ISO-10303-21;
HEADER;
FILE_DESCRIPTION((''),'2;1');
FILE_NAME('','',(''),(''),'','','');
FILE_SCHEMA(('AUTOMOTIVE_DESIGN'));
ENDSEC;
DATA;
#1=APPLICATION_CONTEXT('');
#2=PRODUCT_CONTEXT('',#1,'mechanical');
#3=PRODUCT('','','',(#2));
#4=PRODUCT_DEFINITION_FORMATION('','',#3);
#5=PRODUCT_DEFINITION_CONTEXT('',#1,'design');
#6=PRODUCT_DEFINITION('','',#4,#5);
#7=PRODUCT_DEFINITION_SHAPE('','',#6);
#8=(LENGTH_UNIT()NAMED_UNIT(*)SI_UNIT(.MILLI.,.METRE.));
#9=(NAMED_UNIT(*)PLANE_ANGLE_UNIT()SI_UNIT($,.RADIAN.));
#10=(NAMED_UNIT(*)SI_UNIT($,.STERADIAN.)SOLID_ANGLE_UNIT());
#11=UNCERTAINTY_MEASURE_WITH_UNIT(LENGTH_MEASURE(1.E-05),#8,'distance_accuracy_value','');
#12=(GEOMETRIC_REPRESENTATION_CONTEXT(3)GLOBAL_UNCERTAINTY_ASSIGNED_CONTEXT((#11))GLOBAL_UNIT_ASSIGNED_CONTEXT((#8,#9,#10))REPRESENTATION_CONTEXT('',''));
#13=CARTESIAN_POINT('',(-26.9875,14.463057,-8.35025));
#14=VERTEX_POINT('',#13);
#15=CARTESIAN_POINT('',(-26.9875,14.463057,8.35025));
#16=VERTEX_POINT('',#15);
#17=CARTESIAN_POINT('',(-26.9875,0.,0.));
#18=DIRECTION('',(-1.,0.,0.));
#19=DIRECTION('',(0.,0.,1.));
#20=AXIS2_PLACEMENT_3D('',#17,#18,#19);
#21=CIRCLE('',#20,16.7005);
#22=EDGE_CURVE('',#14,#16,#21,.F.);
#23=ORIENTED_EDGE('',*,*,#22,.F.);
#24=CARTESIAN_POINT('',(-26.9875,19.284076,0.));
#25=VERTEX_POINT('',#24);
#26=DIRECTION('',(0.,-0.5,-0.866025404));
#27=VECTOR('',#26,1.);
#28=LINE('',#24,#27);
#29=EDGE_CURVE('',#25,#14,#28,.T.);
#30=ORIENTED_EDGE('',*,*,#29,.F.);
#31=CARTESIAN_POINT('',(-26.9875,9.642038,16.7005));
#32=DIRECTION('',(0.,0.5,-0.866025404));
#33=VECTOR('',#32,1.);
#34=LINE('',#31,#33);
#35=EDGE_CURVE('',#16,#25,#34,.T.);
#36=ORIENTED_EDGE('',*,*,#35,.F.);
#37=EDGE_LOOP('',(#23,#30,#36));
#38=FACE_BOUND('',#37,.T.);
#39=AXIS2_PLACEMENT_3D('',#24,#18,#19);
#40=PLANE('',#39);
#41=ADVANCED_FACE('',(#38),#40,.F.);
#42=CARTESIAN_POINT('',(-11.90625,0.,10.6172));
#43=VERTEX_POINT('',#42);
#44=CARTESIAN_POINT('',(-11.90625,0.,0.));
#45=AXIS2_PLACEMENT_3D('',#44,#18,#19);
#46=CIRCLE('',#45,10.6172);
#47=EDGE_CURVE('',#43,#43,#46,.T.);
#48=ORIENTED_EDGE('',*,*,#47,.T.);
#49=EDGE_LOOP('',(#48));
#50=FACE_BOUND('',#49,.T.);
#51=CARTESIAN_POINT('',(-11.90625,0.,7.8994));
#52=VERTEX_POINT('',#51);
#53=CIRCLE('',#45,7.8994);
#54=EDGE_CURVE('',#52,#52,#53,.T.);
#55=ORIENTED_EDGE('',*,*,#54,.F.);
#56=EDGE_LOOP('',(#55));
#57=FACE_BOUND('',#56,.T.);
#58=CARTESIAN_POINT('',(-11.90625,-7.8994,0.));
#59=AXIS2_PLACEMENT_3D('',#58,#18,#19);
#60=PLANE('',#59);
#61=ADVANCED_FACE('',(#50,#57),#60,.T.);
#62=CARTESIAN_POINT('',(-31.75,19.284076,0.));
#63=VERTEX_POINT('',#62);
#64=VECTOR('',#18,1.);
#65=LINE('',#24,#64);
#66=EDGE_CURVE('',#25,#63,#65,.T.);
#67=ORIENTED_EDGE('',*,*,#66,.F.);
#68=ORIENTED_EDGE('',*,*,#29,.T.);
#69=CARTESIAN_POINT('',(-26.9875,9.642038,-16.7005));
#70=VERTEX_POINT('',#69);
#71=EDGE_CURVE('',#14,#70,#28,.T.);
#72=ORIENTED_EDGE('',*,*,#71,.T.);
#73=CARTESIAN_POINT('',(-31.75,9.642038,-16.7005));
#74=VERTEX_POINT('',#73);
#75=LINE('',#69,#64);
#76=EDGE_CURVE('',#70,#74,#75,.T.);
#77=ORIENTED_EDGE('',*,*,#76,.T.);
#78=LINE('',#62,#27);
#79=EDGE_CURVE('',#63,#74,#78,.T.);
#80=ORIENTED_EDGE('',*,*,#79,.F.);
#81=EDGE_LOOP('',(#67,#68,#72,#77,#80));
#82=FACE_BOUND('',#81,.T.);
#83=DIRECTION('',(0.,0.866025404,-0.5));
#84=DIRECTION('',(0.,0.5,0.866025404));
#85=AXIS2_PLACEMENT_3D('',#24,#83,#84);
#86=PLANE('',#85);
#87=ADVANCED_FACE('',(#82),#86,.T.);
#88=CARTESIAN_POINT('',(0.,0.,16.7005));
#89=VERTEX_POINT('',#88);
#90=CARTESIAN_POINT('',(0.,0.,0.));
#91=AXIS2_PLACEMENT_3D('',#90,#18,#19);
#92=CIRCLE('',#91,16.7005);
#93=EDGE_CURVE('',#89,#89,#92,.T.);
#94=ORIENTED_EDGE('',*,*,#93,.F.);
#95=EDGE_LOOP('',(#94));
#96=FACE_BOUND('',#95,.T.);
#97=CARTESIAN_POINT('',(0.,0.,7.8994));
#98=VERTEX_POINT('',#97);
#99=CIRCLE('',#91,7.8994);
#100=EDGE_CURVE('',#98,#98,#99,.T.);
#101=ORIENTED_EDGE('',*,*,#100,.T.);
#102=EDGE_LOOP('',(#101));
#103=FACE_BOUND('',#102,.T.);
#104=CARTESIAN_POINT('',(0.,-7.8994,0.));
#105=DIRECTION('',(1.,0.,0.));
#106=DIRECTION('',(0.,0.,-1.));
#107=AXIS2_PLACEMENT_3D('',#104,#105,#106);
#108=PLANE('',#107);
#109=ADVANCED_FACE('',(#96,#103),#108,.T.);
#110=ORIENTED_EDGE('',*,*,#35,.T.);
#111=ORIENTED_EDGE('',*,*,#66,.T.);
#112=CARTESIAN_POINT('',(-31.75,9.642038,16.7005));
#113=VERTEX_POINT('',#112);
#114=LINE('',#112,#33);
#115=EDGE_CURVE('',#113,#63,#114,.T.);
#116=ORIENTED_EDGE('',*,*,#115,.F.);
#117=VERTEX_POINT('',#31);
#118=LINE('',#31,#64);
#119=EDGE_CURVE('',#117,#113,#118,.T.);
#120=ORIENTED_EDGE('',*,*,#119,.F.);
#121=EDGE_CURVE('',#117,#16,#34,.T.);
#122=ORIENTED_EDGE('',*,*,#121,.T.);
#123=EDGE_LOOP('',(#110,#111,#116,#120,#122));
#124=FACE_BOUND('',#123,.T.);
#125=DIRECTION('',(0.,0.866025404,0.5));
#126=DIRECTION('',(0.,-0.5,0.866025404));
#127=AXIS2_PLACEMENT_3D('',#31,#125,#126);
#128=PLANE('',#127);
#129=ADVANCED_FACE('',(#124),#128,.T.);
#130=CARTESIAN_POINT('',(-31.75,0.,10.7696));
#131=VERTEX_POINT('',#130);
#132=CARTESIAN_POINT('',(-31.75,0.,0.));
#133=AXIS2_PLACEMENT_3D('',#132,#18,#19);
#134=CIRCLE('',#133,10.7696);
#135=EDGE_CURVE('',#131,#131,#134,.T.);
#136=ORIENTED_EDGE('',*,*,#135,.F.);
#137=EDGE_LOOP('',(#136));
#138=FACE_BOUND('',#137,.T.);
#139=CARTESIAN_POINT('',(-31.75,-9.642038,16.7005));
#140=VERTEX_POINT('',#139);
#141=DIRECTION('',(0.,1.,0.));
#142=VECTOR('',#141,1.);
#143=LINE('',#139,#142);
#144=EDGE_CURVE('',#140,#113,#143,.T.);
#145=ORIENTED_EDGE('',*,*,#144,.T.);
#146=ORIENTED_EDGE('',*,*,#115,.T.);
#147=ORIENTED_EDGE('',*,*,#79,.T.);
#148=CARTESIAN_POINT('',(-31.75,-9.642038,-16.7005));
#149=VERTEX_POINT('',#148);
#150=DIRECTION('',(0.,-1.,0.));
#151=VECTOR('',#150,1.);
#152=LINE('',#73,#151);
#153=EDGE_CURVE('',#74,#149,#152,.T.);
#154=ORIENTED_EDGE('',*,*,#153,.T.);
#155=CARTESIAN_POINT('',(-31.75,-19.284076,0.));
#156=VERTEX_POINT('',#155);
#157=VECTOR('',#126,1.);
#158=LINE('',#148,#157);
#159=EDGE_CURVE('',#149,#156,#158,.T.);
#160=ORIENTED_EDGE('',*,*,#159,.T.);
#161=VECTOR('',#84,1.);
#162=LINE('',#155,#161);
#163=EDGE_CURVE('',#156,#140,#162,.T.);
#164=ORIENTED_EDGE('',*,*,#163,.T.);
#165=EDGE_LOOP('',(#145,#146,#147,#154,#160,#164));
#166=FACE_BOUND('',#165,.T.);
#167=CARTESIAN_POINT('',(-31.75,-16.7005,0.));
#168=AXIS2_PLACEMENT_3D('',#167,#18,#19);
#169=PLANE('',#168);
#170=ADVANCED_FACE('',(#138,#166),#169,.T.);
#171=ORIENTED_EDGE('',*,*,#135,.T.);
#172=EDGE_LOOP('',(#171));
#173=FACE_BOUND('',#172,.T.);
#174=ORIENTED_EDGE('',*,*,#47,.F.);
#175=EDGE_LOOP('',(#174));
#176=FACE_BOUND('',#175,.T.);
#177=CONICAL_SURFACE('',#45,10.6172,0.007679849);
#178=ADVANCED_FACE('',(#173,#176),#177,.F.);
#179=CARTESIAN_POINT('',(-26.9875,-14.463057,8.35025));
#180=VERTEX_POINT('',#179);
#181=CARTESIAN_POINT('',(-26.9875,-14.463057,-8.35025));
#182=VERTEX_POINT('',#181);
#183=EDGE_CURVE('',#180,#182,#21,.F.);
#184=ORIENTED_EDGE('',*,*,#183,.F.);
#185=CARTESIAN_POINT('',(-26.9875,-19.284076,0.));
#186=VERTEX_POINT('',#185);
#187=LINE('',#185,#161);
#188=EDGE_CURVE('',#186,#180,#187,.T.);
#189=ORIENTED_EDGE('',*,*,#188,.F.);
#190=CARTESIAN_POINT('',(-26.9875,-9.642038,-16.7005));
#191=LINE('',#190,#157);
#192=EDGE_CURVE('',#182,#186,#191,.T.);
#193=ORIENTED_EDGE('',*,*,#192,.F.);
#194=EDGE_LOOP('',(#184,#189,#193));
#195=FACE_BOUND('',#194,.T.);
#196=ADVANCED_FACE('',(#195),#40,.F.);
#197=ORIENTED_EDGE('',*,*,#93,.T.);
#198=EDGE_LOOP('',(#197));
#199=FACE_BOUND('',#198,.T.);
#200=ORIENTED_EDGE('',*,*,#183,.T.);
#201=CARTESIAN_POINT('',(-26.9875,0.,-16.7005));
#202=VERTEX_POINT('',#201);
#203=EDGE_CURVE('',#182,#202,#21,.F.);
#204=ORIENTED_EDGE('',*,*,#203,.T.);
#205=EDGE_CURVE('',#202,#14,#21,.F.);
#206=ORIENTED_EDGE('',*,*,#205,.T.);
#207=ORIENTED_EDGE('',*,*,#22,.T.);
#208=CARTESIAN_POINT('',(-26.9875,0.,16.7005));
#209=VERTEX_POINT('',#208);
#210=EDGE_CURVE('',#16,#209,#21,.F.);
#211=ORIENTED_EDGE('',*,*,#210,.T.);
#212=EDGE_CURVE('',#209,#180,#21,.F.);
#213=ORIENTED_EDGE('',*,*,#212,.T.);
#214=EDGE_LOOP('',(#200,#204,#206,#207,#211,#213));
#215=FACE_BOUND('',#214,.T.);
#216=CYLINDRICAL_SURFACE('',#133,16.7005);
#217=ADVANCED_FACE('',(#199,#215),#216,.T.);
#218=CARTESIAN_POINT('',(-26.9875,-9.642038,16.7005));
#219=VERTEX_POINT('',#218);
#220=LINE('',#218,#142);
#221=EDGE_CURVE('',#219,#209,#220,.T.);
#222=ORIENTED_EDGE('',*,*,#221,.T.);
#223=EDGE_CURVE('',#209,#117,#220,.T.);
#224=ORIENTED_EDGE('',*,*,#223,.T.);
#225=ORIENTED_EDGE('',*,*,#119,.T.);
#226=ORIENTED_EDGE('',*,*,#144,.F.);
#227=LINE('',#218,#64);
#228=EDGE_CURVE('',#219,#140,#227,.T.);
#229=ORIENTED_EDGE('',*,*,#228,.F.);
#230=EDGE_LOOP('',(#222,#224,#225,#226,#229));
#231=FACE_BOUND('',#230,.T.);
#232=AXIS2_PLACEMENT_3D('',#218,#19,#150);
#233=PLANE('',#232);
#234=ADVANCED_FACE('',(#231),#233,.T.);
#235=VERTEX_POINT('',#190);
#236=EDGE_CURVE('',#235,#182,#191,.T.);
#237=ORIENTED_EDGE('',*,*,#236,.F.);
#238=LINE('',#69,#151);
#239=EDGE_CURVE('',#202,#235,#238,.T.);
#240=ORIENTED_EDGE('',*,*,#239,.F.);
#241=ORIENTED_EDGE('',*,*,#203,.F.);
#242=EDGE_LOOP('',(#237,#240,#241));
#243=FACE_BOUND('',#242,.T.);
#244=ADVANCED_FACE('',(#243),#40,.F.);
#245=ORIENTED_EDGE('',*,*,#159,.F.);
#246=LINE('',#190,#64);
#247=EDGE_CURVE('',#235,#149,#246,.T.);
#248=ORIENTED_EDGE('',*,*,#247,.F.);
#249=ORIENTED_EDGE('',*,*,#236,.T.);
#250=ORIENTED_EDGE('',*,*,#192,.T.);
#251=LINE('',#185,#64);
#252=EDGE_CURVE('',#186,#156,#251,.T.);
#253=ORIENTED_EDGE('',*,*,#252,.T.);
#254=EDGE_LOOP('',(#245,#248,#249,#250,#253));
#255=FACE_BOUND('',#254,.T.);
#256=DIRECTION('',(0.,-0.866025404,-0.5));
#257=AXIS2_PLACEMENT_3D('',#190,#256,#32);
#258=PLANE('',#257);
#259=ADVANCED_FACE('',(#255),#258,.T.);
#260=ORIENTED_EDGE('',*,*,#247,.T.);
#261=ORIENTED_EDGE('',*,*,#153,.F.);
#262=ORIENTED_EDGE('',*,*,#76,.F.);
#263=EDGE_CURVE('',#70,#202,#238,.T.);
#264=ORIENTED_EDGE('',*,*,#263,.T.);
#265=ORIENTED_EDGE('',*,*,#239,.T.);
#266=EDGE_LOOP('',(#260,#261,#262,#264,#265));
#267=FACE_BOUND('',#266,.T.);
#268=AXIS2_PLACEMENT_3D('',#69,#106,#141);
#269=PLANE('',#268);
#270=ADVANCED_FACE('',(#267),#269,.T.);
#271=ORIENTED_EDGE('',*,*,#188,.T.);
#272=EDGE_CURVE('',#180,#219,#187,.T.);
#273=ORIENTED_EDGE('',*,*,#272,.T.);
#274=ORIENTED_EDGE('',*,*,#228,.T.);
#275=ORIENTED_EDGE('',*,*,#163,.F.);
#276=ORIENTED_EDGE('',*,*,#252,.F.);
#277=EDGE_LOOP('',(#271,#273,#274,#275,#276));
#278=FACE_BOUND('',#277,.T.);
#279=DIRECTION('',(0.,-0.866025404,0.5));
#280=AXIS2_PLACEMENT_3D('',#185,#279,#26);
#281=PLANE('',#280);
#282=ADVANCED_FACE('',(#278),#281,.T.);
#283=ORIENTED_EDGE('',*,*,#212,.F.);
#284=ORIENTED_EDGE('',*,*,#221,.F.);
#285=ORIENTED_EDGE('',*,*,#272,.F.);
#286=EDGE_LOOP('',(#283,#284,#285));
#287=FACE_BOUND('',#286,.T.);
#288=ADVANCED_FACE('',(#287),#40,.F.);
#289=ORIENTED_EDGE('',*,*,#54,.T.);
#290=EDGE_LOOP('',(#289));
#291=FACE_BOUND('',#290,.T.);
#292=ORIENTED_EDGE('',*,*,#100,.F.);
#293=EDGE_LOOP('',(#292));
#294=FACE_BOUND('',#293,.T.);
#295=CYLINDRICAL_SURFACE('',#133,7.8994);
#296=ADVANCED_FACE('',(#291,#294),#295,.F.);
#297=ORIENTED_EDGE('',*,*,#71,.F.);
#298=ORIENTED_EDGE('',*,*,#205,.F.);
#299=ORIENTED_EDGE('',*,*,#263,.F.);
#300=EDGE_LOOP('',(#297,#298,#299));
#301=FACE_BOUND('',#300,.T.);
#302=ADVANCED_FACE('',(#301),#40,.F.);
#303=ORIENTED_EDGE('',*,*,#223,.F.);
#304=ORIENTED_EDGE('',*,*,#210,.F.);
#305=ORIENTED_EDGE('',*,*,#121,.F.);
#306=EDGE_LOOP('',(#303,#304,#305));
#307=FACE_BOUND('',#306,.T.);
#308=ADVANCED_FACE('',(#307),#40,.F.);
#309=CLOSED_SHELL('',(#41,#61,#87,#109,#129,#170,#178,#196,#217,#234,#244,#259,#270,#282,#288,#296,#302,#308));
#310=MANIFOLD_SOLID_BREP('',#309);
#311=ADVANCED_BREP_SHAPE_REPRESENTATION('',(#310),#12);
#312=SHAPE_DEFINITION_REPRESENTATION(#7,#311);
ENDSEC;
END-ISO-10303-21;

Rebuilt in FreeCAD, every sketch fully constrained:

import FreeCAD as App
import Part
import Sketcher

V = App.Vector
Q = App.Units.Quantity

doc = App.newDocument("Part")
body = doc.addObject("PartDesign::Body", "Body")

# Sketch on XY plane
sketch1 = body.newObject("Sketcher::SketchObject", "Sketch")
sketch1.AttachmentSupport = (doc.getObject("XY_Plane"), [""])
sketch1.MapMode = "FlatFace"
sketch1.addGeometry(Part.LineSegment(V(-31.8, -16.7, 0), V(0, -16.7, 0)), False)
sketch1.addGeometry(Part.LineSegment(V(0, -16.7, 0), V(0, -7.9, 0)), False)
sketch1.addGeometry(Part.LineSegment(V(0, -7.9, 0), V(-11.9, -7.9, 0)), False)
sketch1.addGeometry(Part.LineSegment(V(-11.9, -7.9, 0), V(-11.9, -10.6, 0)), False)
sketch1.addGeometry(Part.LineSegment(V(-11.9, -10.6, 0), V(-31.8, -10.8, 0)), False)
sketch1.addGeometry(Part.LineSegment(V(-31.8, -10.8, 0), V(-31.8, -16.7, 0)), False)
sketch1.addConstraint(Sketcher.Constraint("Coincident", 0, 2, 1, 1))
sketch1.addConstraint(Sketcher.Constraint("Coincident", 1, 2, 2, 1))
sketch1.addConstraint(Sketcher.Constraint("Coincident", 2, 2, 3, 1))
sketch1.addConstraint(Sketcher.Constraint("Coincident", 3, 2, 4, 1))
sketch1.addConstraint(Sketcher.Constraint("Coincident", 4, 2, 5, 1))
sketch1.addConstraint(Sketcher.Constraint("Coincident", 5, 2, 0, 1))
sketch1.addConstraint(Sketcher.Constraint("Horizontal", 0))
sketch1.addConstraint(Sketcher.Constraint("Vertical", 1))
sketch1.addConstraint(Sketcher.Constraint("Horizontal", 2))
sketch1.addConstraint(Sketcher.Constraint("Vertical", 3))
sketch1.addConstraint(Sketcher.Constraint("Vertical", 5))
sketch1.addConstraint(Sketcher.Constraint("PointOnObject", 0, 2, -2))
sketch1.addConstraint(Sketcher.Constraint("DistanceX", 0, 1, 0, 2, Q("1.25 in")))
sketch1.addConstraint(Sketcher.Constraint("DistanceX", 2, 2, 2, 1, Q("0.46875 in")))
sketch1.addConstraint(Sketcher.Constraint("DistanceY", 3, 2, 3, 1, Q("0.107 in")))
sketch1.addConstraint(Sketcher.Constraint("DistanceY", 1, 1, 1, 2, Q("0.3465 in")))
sketch1.addConstraint(Sketcher.Constraint("DistanceY", 5, 2, 5, 1, Q("0.2335 in")))
sketch1.addConstraint(Sketcher.Constraint("DistanceY", 1, 2, -1, 1, Q("0.311 in")))
revolution = body.newObject("PartDesign::Revolution", "Revolution")
revolution.Profile = sketch1
revolution.ReferenceAxis = (sketch1, ["H_Axis"])
revolution.Angle = 360

# Sketch on YZ plane
sketch2 = body.newObject("Sketcher::SketchObject", "Sketch001")
sketch2.AttachmentSupport = (doc.getObject("YZ_Plane"), [""])
sketch2.MapMode = "FlatFace"
sketch2.AttachmentOffset = App.Placement(V(0, 0, -1.25 * 25.4), App.Rotation())
sketch2.addGeometry(Part.LineSegment(V(19, 0, 0), V(10, -17, 0)), False)
sketch2.addGeometry(Part.LineSegment(V(10, -17, 0), V(-10, -17, 0)), False)
sketch2.addGeometry(Part.LineSegment(V(-10, -17, 0), V(-19, 0, 0)), False)
sketch2.addGeometry(Part.LineSegment(V(-19, 0, 0), V(-10, 17, 0)), False)
sketch2.addGeometry(Part.LineSegment(V(-10, 17, 0), V(10, 17, 0)), False)
sketch2.addGeometry(Part.LineSegment(V(10, 17, 0), V(19, 0, 0)), False)
sketch2.addGeometry(Part.Circle(V(0, 0, 0), V(0, 0, 1), 11), False)
sketch2.addConstraint(Sketcher.Constraint("Coincident", 0, 2, 1, 1))
sketch2.addConstraint(Sketcher.Constraint("Coincident", 1, 2, 2, 1))
sketch2.addConstraint(Sketcher.Constraint("Coincident", 2, 2, 3, 1))
sketch2.addConstraint(Sketcher.Constraint("Coincident", 3, 2, 4, 1))
sketch2.addConstraint(Sketcher.Constraint("Coincident", 4, 2, 5, 1))
sketch2.addConstraint(Sketcher.Constraint("Coincident", 5, 2, 0, 1))
sketch2.addConstraint(Sketcher.Constraint("Horizontal", 1))
sketch2.addConstraint(Sketcher.Constraint("Horizontal", 4))
sketch2.addConstraint(Sketcher.Constraint("Coincident", 6, 3, -1, 1))
sketch2.addConstraint(Sketcher.Constraint("Symmetric", 0, 2, 3, 2, -1, 1))
sketch2.addConstraint(Sketcher.Constraint("Symmetric", 2, 2, 5, 2, -1, 1))
sketch2.addConstraint(Sketcher.Constraint("PointOnObject", 2, 2, -1))
sketch2.addConstraint(Sketcher.Constraint("Parallel", 2, 5))
sketch2.addConstraint(Sketcher.Constraint("Vertical", 1, 2, 3, 2))
sketch2.addConstraint(Sketcher.Constraint("Diameter", 6, Q("0.848 in")))
sketch2.addConstraint(Sketcher.Constraint("Angle", 0, Q("-120 deg")))
sketch2.addConstraint(Sketcher.Constraint("DistanceY", 1, 2, 3, 2, Q("1.315 in")))
sketch2.addConstraint(Sketcher.Constraint("DistanceX", 1, 2, 1, 1, Q("19.284076 mm")))
pad1 = body.newObject("PartDesign::Pad", "Pad")
pad1.Profile = sketch2
pad1.Length = Q("0.1875 in")

doc.recompute()
